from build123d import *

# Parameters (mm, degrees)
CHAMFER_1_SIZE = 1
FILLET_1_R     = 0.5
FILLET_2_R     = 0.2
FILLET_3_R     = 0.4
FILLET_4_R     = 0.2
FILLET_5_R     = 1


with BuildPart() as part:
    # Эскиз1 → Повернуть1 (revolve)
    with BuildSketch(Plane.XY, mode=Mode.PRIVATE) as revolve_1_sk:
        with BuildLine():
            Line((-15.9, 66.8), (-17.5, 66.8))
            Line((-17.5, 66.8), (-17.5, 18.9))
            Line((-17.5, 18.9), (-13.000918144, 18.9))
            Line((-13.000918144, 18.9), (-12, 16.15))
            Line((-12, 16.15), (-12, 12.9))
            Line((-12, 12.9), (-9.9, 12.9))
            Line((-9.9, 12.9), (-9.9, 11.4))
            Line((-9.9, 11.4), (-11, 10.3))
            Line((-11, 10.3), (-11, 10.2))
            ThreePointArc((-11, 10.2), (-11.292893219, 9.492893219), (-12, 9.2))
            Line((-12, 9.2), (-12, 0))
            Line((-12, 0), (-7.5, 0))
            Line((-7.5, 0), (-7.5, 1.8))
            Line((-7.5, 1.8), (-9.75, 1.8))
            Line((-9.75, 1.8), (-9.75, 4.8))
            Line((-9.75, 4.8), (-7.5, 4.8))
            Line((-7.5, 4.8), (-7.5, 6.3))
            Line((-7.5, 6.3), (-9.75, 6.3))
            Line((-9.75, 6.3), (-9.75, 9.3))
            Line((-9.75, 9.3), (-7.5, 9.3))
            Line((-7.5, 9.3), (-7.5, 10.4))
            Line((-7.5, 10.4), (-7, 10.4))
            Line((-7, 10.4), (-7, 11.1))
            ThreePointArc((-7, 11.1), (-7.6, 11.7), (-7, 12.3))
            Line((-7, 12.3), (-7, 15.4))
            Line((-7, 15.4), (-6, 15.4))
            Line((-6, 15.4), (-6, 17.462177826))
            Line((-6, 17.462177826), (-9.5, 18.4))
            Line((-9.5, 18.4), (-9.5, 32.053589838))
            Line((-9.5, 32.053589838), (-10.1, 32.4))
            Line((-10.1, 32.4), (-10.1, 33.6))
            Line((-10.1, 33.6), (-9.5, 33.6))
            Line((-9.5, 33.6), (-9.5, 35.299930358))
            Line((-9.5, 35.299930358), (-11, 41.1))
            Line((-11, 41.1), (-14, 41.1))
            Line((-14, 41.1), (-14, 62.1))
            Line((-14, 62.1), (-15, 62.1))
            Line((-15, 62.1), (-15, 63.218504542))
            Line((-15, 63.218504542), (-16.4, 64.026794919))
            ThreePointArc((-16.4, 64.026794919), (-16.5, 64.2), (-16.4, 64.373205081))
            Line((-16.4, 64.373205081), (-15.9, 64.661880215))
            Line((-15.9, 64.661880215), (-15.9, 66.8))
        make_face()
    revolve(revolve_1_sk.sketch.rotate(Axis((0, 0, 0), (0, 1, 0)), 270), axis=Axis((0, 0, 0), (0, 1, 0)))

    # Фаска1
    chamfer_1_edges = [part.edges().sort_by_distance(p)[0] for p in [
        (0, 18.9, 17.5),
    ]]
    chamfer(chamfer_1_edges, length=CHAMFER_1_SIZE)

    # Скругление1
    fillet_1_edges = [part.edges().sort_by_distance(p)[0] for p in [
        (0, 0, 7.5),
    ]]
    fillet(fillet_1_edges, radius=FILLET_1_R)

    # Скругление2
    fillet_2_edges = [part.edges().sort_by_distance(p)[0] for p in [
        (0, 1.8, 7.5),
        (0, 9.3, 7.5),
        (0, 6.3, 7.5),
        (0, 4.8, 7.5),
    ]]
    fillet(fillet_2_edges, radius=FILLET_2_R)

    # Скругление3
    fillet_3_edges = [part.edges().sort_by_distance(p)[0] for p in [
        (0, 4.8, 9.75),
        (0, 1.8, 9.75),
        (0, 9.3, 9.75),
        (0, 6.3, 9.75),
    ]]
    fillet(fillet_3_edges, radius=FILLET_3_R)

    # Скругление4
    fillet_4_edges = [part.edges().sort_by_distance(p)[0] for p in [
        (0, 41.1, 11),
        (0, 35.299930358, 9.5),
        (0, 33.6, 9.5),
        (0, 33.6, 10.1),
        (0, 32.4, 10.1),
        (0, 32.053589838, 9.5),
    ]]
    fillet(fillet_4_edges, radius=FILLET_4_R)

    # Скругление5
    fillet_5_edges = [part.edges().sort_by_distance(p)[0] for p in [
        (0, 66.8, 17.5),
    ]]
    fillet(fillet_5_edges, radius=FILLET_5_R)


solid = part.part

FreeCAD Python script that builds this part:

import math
import FreeCAD as App
import Part
import Sketcher
Q = App.Units.Quantity


def edges_at(feature, points):
    """Names of the edges that pass closest to the given points."""
    edges = feature.Shape.Edges
    near = lambda p: min(range(len(edges)), key=lambda i: edges[i].distToShape(Part.Vertex(*p))[0])
    return sorted({f"Edge{near(p) + 1}" for p in points})

doc = App.newDocument("Part")
body = doc.addObject("PartDesign::Body", "Body")

# Sketch on XY plane
sketch1 = body.newObject("Sketcher::SketchObject", "Sketch")
sketch1.AttachmentSupport = (doc.getObject("XY_Plane"), [""])
sketch1.MapMode = "FlatFace"
sketch1.addGeometry(Part.LineSegment(App.Vector(-15.9, 66.8, 0), App.Vector(-17.5, 66.8, 0)), False)
sketch1.addGeometry(Part.LineSegment(App.Vector(-17.5, 66.8, 0), App.Vector(-17.5, 18.9, 0)), False)
sketch1.addGeometry(Part.LineSegment(App.Vector(-17.5, 18.9, 0), App.Vector(-13, 18.9, 0)), False)
sketch1.addGeometry(Part.LineSegment(App.Vector(-13, 18.9, 0), App.Vector(-12, 16.15, 0)), False)
sketch1.addGeometry(Part.LineSegment(App.Vector(-12, 16.15, 0), App.Vector(-12, 12.9, 0)), False)
sketch1.addGeometry(Part.LineSegment(App.Vector(-12, 12.9, 0), App.Vector(-9.9, 12.9, 0)), False)
sketch1.addGeometry(Part.LineSegment(App.Vector(-9.9, 12.9, 0), App.Vector(-9.9, 11.4, 0)), False)
sketch1.addGeometry(Part.LineSegment(App.Vector(-9.9, 11.4, 0), App.Vector(-11, 10.3, 0)), False)
sketch1.addGeometry(Part.LineSegment(App.Vector(-11, 10.3, 0), App.Vector(-11, 10.2, 0)), False)
sketch1.addGeometry(Part.ArcOfCircle(Part.Circle(App.Vector(-12, 10.2, 0), App.Vector(0, 0, 1), 1), math.radians(-90), math.radians(0)), False)
sketch1.addGeometry(Part.LineSegment(App.Vector(-12, 9.2, 0), App.Vector(-12, 0, 0)), False)
sketch1.addGeometry(Part.LineSegment(App.Vector(-12, 0, 0), App.Vector(-7.5, 0, 0)), False)
sketch1.addGeometry(Part.LineSegment(App.Vector(-7.5, 0, 0), App.Vector(-7.5, 1.8, 0)), False)
sketch1.addGeometry(Part.LineSegment(App.Vector(-7.5, 1.8, 0), App.Vector(-9.75, 1.8, 0)), False)
sketch1.addGeometry(Part.LineSegment(App.Vector(-9.75, 1.8, 0), App.Vector(-9.75, 4.8, 0)), False)
sketch1.addGeometry(Part.LineSegment(App.Vector(-9.75, 4.8, 0), App.Vector(-7.5, 4.8, 0)), False)
sketch1.addGeometry(Part.LineSegment(App.Vector(-7.5, 4.8, 0), App.Vector(-7.5, 6.3, 0)), False)
sketch1.addGeometry(Part.LineSegment(App.Vector(-7.5, 6.3, 0), App.Vector(-9.75, 6.3, 0)), False)
sketch1.addGeometry(Part.LineSegment(App.Vector(-9.75, 6.3, 0), App.Vector(-9.75, 9.3, 0)), False)
sketch1.addGeometry(Part.LineSegment(App.Vector(-9.75, 9.3, 0), App.Vector(-7.5, 9.3, 0)), False)
sketch1.addGeometry(Part.LineSegment(App.Vector(-7.5, 9.3, 0), App.Vector(-7.5, 10.4, 0)), False)
sketch1.addGeometry(Part.LineSegment(App.Vector(-7.5, 10.4, 0), App.Vector(-7, 10.4, 0)), False)
sketch1.addGeometry(Part.LineSegment(App.Vector(-7, 10.4, 0), App.Vector(-7, 11.1, 0)), False)
sketch1.addGeometry(Part.ArcOfCircle(Part.Circle(App.Vector(-7, 11.7, 0), App.Vector(0, 0, 1), 0.6), math.radians(90), math.radians(270)), False)
sketch1.addGeometry(Part.LineSegment(App.Vector(-7, 12.3, 0), App.Vector(-7, 15.4, 0)), False)
sketch1.addGeometry(Part.LineSegment(App.Vector(-7, 15.4, 0), App.Vector(-6, 15.4, 0)), False)
sketch1.addGeometry(Part.LineSegment(App.Vector(-6, 15.4, 0), App.Vector(-6, 17.46, 0)), False)
sketch1.addGeometry(Part.LineSegment(App.Vector(-6, 17.46, 0), App.Vector(-9.5, 18.4, 0)), False)
sketch1.addGeometry(Part.LineSegment(App.Vector(-9.5, 18.4, 0), App.Vector(-9.5, 32.05, 0)), False)
sketch1.addGeometry(Part.LineSegment(App.Vector(-9.5, 32.05, 0), App.Vector(-10.1, 32.4, 0)), False)
sketch1.addGeometry(Part.LineSegment(App.Vector(-10.1, 32.4, 0), App.Vector(-10.1, 33.6, 0)), False)
sketch1.addGeometry(Part.LineSegment(App.Vector(-10.1, 33.6, 0), App.Vector(-9.5, 33.6, 0)), False)
sketch1.addGeometry(Part.LineSegment(App.Vector(-9.5, 33.6, 0), App.Vector(-9.5, 35.3, 0)), False)
sketch1.addGeometry(Part.LineSegment(App.Vector(-9.5, 35.3, 0), App.Vector(-11, 41.1, 0)), False)
sketch1.addGeometry(Part.LineSegment(App.Vector(-11, 41.1, 0), App.Vector(-14, 41.1, 0)), False)
sketch1.addGeometry(Part.LineSegment(App.Vector(-14, 41.1, 0), App.Vector(-14, 62.1, 0)), False)
sketch1.addGeometry(Part.LineSegment(App.Vector(-14, 62.1, 0), App.Vector(-15, 62.1, 0)), False)
sketch1.addGeometry(Part.LineSegment(App.Vector(-15, 62.1, 0), App.Vector(-15, 63.22, 0)), False)
sketch1.addGeometry(Part.LineSegment(App.Vector(-15, 63.22, 0), App.Vector(-16.4, 64.03, 0)), False)
sketch1.addGeometry(Part.ArcOfCircle(Part.Circle(App.Vector(-16.3, 64.2, 0), App.Vector(0, 0, 1), 0.2), math.radians(120), math.radians(240)), False)
sketch1.addGeometry(Part.LineSegment(App.Vector(-16.4, 64.37, 0), App.Vector(-15.9, 64.66, 0)), False)
sketch1.addGeometry(Part.LineSegment(App.Vector(-15.9, 64.66, 0), App.Vector(-15.9, 66.8, 0)), False)
sketch1.addConstraint(Sketcher.Constraint("Coincident", 0, 2, 1, 1))
sketch1.addConstraint(Sketcher.Constraint("Coincident", 1, 2, 2, 1))
sketch1.addConstraint(Sketcher.Constraint("Coincident", 2, 2, 3, 1))
sketch1.addConstraint(Sketcher.Constraint("Coincident", 3, 2, 4, 1))
sketch1.addConstraint(Sketcher.Constraint("Coincident", 4, 2, 5, 1))
sketch1.addConstraint(Sketcher.Constraint("Coincident", 5, 2, 6, 1))
sketch1.addConstraint(Sketcher.Constraint("Coincident", 6, 2, 7, 1))
sketch1.addConstraint(Sketcher.Constraint("Coincident", 7, 2, 8, 1))
sketch1.addConstraint(Sketcher.Constraint("Tangent", 8, 2, 9, 2))
sketch1.addConstraint(Sketcher.Constraint("Coincident", 9, 1, 10, 1))
sketch1.addConstraint(Sketcher.Constraint("Coincident", 10, 2, 11, 1))
sketch1.addConstraint(Sketcher.Constraint("Coincident", 11, 2, 12, 1))
sketch1.addConstraint(Sketcher.Constraint("Coincident", 12, 2, 13, 1))
sketch1.addConstraint(Sketcher.Constraint("Coincident", 13, 2, 14, 1))
sketch1.addConstraint(Sketcher.Constraint("Coincident", 14, 2, 15, 1))
sketch1.addConstraint(Sketcher.Constraint("Coincident", 15, 2, 16, 1))
sketch1.addConstraint(Sketcher.Constraint("Coincident", 16, 2, 17, 1))
sketch1.addConstraint(Sketcher.Constraint("Coincident", 17, 2, 18, 1))
sketch1.addConstraint(Sketcher.Constraint("Coincident", 18, 2, 19, 1))
sketch1.addConstraint(Sketcher.Constraint("Coincident", 19, 2, 20, 1))
sketch1.addConstraint(Sketcher.Constraint("Coincident", 20, 2, 21, 1))
sketch1.addConstraint(Sketcher.Constraint("Coincident", 21, 2, 22, 1))
sketch1.addConstraint(Sketcher.Constraint("Coincident", 22, 2, 23, 2))
sketch1.addConstraint(Sketcher.Constraint("Coincident", 23, 1, 24, 1))
sketch1.addConstraint(Sketcher.Constraint("Coincident", 24, 2, 25, 1))
sketch1.addConstraint(Sketcher.Constraint("Coincident", 25, 2, 26, 1))
sketch1.addConstraint(Sketcher.Constraint("Coincident", 26, 2, 27, 1))
sketch1.addConstraint(Sketcher.Constraint("Coincident", 27, 2, 28, 1))
sketch1.addConstraint(Sketcher.Constraint("Coincident", 28, 2, 29, 1))
sketch1.addConstraint(Sketcher.Constraint("Coincident", 29, 2, 30, 1))
sketch1.addConstraint(Sketcher.Constraint("Coincident", 30, 2, 31, 1))
sketch1.addConstraint(Sketcher.Constraint("Coincident", 31, 2, 32, 1))
sketch1.addConstraint(Sketcher.Constraint("Coincident", 32, 2, 33, 1))
sketch1.addConstraint(Sketcher.Constraint("Coincident", 33, 2, 34, 1))
sketch1.addConstraint(Sketcher.Constraint("Coincident", 34, 2, 35, 1))
sketch1.addConstraint(Sketcher.Constraint("Coincident", 35, 2, 36, 1))
sketch1.addConstraint(Sketcher.Constraint("Coincident", 36, 2, 37, 1))
sketch1.addConstraint(Sketcher.Constraint("Coincident", 37, 2, 38, 1))
sketch1.addConstraint(Sketcher.Constraint("Tangent", 38, 2, 39, 2))
sketch1.addConstraint(Sketcher.Constraint("Tangent", 39, 1, 40, 1))
sketch1.addConstraint(Sketcher.Constraint("Coincident", 40, 2, 41, 1))
sketch1.addConstraint(Sketcher.Constraint("Coincident", 41, 2, 0, 1))
sketch1.addConstraint(Sketcher.Constraint("Horizontal", 0))
sketch1.addConstraint(Sketcher.Constraint("Vertical", 1))
sketch1.addConstraint(Sketcher.Constraint("Horizontal", 2))
sketch1.addConstraint(Sketcher.Constraint("Vertical", 4))
sketch1.addConstraint(Sketcher.Constraint("Horizontal", 5))
sketch1.addConstraint(Sketcher.Constraint("Vertical", 6))
sketch1.addConstraint(Sketcher.Constraint("Vertical", 8))
sketch1.addConstraint(Sketcher.Constraint("Vertical", 10))
sketch1.addConstraint(Sketcher.Constraint("Horizontal", 11))
sketch1.addConstraint(Sketcher.Constraint("Vertical", 12))
sketch1.addConstraint(Sketcher.Constraint("Horizontal", 13))
sketch1.addConstraint(Sketcher.Constraint("Vertical", 14))
sketch1.addConstraint(Sketcher.Constraint("Horizontal", 15))
sketch1.addConstraint(Sketcher.Constraint("Vertical", 16))
sketch1.addConstraint(Sketcher.Constraint("Horizontal", 17))
sketch1.addConstraint(Sketcher.Constraint("Vertical", 18))
sketch1.addConstraint(Sketcher.Constraint("Horizontal", 19))
sketch1.addConstraint(Sketcher.Constraint("Vertical", 20))
sketch1.addConstraint(Sketcher.Constraint("Horizontal", 21))
sketch1.addConstraint(Sketcher.Constraint("Vertical", 22))
sketch1.addConstraint(Sketcher.Constraint("Vertical", 24))
sketch1.addConstraint(Sketcher.Constraint("Horizontal", 25))
sketch1.addConstraint(Sketcher.Constraint("Vertical", 26))
sketch1.addConstraint(Sketcher.Constraint("Vertical", 28))
sketch1.addConstraint(Sketcher.Constraint("Vertical", 30))
sketch1.addConstraint(Sketcher.Constraint("Horizontal", 31))
sketch1.addConstraint(Sketcher.Constraint("Vertical", 32))
sketch1.addConstraint(Sketcher.Constraint("Horizontal", 34))
sketch1.addConstraint(Sketcher.Constraint("Vertical", 35))
sketch1.addConstraint(Sketcher.Constraint("Horizontal", 36))
sketch1.addConstraint(Sketcher.Constraint("Vertical", 37))
sketch1.addConstraint(Sketcher.Constraint("Vertical", 41))
sketch1.addConstraint(Sketcher.Constraint("PointOnObject", 10, 2, -1))
sketch1.addConstraint(Sketcher.Constraint("Parallel", 29, 38))
sketch1.addConstraint(Sketcher.Constraint("Vertical", 9, 3, 3, 2))
sketch1.addConstraint(Sketcher.Constraint("Vertical", 4, 2, 9, 1))
sketch1.addConstraint(Sketcher.Constraint("Vertical", 12, 2, 15, 2))
sketch1.addConstraint(Sketcher.Constraint("Vertical", 14, 2, 17, 2))
sketch1.addConstraint(Sketcher.Constraint("Vertical", 16, 2, 19, 2))
sketch1.addConstraint(Sketcher.Constraint("Vertical", 23, 3, 21, 2))
sketch1.addConstraint(Sketcher.Constraint("Vertical", 22, 2, 23, 1))
sketch1.addConstraint(Sketcher.Constraint("Vertical", 28, 2, 31, 2))
sketch1.addConstraint(Sketcher.Constraint("Vertical", 8, 2, 33, 2))
sketch1.addConstraint(Sketcher.Constraint("Vertical", 38, 2, 39, 1))
sketch1.addConstraint(Sketcher.Constraint("Equal", 25, 36))
sketch1.addConstraint(Sketcher.Constraint("Equal", 34, 14))
sketch1.addConstraint(Sketcher.Constraint("Equal", 6, 16))
sketch1.addConstraint(Sketcher.Constraint("Equal", 14, 18))
sketch1.addConstraint(Sketcher.Constraint("Radius", 9, Q("1 mm")))
sketch1.addConstraint(Sketcher.Constraint("Radius", 23, Q("0.6 mm")))
sketch1.addConstraint(Sketcher.Constraint("Radius", 39, Q("0.2 mm")))
sketch1.addConstraint(Sketcher.Constraint("DistanceX", 25, 1, 25, 2, Q("1 mm")))
sketch1.addConstraint(Sketcher.Constraint("DistanceX", 34, 2, 34, 1, Q("3 mm")))
sketch1.addConstraint(Sketcher.Constraint("DistanceY", 35, 1, 35, 2, Q("21 mm")))
sketch1.addConstraint(Sketcher.Constraint("Angle", 3, Q("-70 deg")))
sketch1.addConstraint(Sketcher.Constraint("Angle", 7, Q("-135 deg")))
sketch1.addConstraint(Sketcher.Constraint("Angle", 27, Q("165 deg")))
sketch1.addConstraint(Sketcher.Constraint("Angle", 29, Q("150 deg")))
sketch1.addConstraint(Sketcher.Constraint("DistanceX", 0, 2, 0, 1, Q("1.6 mm")))
sketch1.addConstraint(Sketcher.Constraint("DistanceX", 5, 1, 5, 2, Q("2.1 mm")))
sketch1.addConstraint(Sketcher.Constraint("DistanceX", 11, 1, 11, 2, Q("4.5 mm")))
sketch1.addConstraint(Sketcher.Constraint("DistanceX", 21, 1, 21, 2, Q("0.5 mm")))
sketch1.addConstraint(Sketcher.Constraint("DistanceX", 31, 1, 31, 2, Q("0.6 mm")))
sketch1.addConstraint(Sketcher.Constraint("DistanceY", 1, 2, 1, 1, Q("47.9 mm")))
sketch1.addConstraint(Sketcher.Constraint("DistanceY", 6, 2, 6, 1, Q("1.5 mm")))
sketch1.addConstraint(Sketcher.Constraint("DistanceY", 8, 2, 8, 1, Q("0.1 mm")))
sketch1.addConstraint(Sketcher.Constraint("DistanceY", 10, 2, 10, 1, Q("9.2 mm")))
sketch1.addConstraint(Sketcher.Constraint("DistanceY", 12, 1, 12, 2, Q("1.8 mm")))
sketch1.addConstraint(Sketcher.Constraint("DistanceY", 20, 1, 20, 2, Q("1.1 mm")))
sketch1.addConstraint(Sketcher.Constraint("DistanceY", 22, 1, 22, 2, Q("0.7 mm")))
sketch1.addConstraint(Sketcher.Constraint("DistanceY", 24, 1, 24, 2, Q("3.1 mm")))
sketch1.addConstraint(Sketcher.Constraint("DistanceY", 30, 1, 30, 2, Q("1.2 mm")))
sketch1.addConstraint(Sketcher.Constraint("DistanceX", 9, 3, -1, 1, Q("12 mm")))
sketch1.addConstraint(Sketcher.Constraint("Angle", 33, Q("104.5 deg")))
sketch1.addConstraint(Sketcher.Constraint("DistanceY", 9, 3, 39, 3, Q("54 mm")))
sketch1.addConstraint(Sketcher.Constraint("DistanceY", 4, 2, 2, 2, Q("6 mm")))
sketch1.addConstraint(Sketcher.Constraint("DistanceY", 24, 2, 27, 2, Q("3 mm")))
sketch1.addConstraint(Sketcher.Constraint("DistanceX", 1, 2, 28, 2, Q("8 mm")))
sketch1.addConstraint(Sketcher.Constraint("DistanceY", 27, 2, 29, 2, Q("14 mm")))
sketch1.addConstraint(Sketcher.Constraint("DistanceX", 13, 2, 13, 1, Q("2.25 mm")))
sketch1.addConstraint(Sketcher.Constraint("DistanceY", 4, 2, 4, 1, Q("3.25 mm")))
sketch1.addConstraint(Sketcher.Constraint("DistanceX", 39, 3, -1, 1, Q("16.3 mm")))
sketch1.addConstraint(Sketcher.Constraint("DistanceX", 0, 2, -1, 1, Q("17.5 mm")))
sketch1.addConstraint(Sketcher.Constraint("DistanceY", -1, 1, 33, 2, Q("41.1 mm")))
revolution = body.newObject("PartDesign::Revolution", "Revolution")
revolution.Profile = sketch1
revolution.ReferenceAxis = (sketch1, ["V_Axis"])
revolution.Angle = 360
doc.recompute()

chamfer = body.newObject("PartDesign::Chamfer", "Chamfer")
chamfer.Base = (revolution, edges_at(revolution, [(0, 18.9, 17.5)]))
chamfer.Size = 1
doc.recompute()

fillet = body.newObject("PartDesign::Fillet", "Fillet")
fillet.Base = (chamfer, edges_at(chamfer, [(0, 0, 7.5)]))
fillet.Radius = 0.5
doc.recompute()

fillet2 = body.newObject("PartDesign::Fillet", "Fillet001")
fillet2.Base = (fillet, edges_at(fillet, [
    (0, 1.8, 7.5),
    (0, 9.3, 7.5),
    (0, 6.3, 7.5),
    (0, 4.8, 7.5),
]))
fillet2.Radius = 0.2
doc.recompute()

fillet3 = body.newObject("PartDesign::Fillet", "Fillet002")
fillet3.Base = (fillet2, edges_at(fillet2, [
    (0, 4.8, 9.75),
    (0, 1.8, 9.75),
    (0, 9.3, 9.75),
    (0, 6.3, 9.75),
]))
fillet3.Radius = 0.4
doc.recompute()

fillet4 = body.newObject("PartDesign::Fillet", "Fillet003")
fillet4.Base = (fillet3, edges_at(fillet3, [
    (0, 41.1, 11),
    (0, 35.3, 9.5),
    (0, 33.6, 9.5),
    (0, 33.6, 10.1),
    (0, 32.4, 10.1),
    (0, 32.054, 9.5),
]))
fillet4.Radius = 0.2
doc.recompute()

fillet5 = body.newObject("PartDesign::Fillet", "Fillet004")
fillet5.Base = (fillet4, edges_at(fillet4, [(0, 66.8, 17.5)]))
fillet5.Radius = 1

doc.recompute()
